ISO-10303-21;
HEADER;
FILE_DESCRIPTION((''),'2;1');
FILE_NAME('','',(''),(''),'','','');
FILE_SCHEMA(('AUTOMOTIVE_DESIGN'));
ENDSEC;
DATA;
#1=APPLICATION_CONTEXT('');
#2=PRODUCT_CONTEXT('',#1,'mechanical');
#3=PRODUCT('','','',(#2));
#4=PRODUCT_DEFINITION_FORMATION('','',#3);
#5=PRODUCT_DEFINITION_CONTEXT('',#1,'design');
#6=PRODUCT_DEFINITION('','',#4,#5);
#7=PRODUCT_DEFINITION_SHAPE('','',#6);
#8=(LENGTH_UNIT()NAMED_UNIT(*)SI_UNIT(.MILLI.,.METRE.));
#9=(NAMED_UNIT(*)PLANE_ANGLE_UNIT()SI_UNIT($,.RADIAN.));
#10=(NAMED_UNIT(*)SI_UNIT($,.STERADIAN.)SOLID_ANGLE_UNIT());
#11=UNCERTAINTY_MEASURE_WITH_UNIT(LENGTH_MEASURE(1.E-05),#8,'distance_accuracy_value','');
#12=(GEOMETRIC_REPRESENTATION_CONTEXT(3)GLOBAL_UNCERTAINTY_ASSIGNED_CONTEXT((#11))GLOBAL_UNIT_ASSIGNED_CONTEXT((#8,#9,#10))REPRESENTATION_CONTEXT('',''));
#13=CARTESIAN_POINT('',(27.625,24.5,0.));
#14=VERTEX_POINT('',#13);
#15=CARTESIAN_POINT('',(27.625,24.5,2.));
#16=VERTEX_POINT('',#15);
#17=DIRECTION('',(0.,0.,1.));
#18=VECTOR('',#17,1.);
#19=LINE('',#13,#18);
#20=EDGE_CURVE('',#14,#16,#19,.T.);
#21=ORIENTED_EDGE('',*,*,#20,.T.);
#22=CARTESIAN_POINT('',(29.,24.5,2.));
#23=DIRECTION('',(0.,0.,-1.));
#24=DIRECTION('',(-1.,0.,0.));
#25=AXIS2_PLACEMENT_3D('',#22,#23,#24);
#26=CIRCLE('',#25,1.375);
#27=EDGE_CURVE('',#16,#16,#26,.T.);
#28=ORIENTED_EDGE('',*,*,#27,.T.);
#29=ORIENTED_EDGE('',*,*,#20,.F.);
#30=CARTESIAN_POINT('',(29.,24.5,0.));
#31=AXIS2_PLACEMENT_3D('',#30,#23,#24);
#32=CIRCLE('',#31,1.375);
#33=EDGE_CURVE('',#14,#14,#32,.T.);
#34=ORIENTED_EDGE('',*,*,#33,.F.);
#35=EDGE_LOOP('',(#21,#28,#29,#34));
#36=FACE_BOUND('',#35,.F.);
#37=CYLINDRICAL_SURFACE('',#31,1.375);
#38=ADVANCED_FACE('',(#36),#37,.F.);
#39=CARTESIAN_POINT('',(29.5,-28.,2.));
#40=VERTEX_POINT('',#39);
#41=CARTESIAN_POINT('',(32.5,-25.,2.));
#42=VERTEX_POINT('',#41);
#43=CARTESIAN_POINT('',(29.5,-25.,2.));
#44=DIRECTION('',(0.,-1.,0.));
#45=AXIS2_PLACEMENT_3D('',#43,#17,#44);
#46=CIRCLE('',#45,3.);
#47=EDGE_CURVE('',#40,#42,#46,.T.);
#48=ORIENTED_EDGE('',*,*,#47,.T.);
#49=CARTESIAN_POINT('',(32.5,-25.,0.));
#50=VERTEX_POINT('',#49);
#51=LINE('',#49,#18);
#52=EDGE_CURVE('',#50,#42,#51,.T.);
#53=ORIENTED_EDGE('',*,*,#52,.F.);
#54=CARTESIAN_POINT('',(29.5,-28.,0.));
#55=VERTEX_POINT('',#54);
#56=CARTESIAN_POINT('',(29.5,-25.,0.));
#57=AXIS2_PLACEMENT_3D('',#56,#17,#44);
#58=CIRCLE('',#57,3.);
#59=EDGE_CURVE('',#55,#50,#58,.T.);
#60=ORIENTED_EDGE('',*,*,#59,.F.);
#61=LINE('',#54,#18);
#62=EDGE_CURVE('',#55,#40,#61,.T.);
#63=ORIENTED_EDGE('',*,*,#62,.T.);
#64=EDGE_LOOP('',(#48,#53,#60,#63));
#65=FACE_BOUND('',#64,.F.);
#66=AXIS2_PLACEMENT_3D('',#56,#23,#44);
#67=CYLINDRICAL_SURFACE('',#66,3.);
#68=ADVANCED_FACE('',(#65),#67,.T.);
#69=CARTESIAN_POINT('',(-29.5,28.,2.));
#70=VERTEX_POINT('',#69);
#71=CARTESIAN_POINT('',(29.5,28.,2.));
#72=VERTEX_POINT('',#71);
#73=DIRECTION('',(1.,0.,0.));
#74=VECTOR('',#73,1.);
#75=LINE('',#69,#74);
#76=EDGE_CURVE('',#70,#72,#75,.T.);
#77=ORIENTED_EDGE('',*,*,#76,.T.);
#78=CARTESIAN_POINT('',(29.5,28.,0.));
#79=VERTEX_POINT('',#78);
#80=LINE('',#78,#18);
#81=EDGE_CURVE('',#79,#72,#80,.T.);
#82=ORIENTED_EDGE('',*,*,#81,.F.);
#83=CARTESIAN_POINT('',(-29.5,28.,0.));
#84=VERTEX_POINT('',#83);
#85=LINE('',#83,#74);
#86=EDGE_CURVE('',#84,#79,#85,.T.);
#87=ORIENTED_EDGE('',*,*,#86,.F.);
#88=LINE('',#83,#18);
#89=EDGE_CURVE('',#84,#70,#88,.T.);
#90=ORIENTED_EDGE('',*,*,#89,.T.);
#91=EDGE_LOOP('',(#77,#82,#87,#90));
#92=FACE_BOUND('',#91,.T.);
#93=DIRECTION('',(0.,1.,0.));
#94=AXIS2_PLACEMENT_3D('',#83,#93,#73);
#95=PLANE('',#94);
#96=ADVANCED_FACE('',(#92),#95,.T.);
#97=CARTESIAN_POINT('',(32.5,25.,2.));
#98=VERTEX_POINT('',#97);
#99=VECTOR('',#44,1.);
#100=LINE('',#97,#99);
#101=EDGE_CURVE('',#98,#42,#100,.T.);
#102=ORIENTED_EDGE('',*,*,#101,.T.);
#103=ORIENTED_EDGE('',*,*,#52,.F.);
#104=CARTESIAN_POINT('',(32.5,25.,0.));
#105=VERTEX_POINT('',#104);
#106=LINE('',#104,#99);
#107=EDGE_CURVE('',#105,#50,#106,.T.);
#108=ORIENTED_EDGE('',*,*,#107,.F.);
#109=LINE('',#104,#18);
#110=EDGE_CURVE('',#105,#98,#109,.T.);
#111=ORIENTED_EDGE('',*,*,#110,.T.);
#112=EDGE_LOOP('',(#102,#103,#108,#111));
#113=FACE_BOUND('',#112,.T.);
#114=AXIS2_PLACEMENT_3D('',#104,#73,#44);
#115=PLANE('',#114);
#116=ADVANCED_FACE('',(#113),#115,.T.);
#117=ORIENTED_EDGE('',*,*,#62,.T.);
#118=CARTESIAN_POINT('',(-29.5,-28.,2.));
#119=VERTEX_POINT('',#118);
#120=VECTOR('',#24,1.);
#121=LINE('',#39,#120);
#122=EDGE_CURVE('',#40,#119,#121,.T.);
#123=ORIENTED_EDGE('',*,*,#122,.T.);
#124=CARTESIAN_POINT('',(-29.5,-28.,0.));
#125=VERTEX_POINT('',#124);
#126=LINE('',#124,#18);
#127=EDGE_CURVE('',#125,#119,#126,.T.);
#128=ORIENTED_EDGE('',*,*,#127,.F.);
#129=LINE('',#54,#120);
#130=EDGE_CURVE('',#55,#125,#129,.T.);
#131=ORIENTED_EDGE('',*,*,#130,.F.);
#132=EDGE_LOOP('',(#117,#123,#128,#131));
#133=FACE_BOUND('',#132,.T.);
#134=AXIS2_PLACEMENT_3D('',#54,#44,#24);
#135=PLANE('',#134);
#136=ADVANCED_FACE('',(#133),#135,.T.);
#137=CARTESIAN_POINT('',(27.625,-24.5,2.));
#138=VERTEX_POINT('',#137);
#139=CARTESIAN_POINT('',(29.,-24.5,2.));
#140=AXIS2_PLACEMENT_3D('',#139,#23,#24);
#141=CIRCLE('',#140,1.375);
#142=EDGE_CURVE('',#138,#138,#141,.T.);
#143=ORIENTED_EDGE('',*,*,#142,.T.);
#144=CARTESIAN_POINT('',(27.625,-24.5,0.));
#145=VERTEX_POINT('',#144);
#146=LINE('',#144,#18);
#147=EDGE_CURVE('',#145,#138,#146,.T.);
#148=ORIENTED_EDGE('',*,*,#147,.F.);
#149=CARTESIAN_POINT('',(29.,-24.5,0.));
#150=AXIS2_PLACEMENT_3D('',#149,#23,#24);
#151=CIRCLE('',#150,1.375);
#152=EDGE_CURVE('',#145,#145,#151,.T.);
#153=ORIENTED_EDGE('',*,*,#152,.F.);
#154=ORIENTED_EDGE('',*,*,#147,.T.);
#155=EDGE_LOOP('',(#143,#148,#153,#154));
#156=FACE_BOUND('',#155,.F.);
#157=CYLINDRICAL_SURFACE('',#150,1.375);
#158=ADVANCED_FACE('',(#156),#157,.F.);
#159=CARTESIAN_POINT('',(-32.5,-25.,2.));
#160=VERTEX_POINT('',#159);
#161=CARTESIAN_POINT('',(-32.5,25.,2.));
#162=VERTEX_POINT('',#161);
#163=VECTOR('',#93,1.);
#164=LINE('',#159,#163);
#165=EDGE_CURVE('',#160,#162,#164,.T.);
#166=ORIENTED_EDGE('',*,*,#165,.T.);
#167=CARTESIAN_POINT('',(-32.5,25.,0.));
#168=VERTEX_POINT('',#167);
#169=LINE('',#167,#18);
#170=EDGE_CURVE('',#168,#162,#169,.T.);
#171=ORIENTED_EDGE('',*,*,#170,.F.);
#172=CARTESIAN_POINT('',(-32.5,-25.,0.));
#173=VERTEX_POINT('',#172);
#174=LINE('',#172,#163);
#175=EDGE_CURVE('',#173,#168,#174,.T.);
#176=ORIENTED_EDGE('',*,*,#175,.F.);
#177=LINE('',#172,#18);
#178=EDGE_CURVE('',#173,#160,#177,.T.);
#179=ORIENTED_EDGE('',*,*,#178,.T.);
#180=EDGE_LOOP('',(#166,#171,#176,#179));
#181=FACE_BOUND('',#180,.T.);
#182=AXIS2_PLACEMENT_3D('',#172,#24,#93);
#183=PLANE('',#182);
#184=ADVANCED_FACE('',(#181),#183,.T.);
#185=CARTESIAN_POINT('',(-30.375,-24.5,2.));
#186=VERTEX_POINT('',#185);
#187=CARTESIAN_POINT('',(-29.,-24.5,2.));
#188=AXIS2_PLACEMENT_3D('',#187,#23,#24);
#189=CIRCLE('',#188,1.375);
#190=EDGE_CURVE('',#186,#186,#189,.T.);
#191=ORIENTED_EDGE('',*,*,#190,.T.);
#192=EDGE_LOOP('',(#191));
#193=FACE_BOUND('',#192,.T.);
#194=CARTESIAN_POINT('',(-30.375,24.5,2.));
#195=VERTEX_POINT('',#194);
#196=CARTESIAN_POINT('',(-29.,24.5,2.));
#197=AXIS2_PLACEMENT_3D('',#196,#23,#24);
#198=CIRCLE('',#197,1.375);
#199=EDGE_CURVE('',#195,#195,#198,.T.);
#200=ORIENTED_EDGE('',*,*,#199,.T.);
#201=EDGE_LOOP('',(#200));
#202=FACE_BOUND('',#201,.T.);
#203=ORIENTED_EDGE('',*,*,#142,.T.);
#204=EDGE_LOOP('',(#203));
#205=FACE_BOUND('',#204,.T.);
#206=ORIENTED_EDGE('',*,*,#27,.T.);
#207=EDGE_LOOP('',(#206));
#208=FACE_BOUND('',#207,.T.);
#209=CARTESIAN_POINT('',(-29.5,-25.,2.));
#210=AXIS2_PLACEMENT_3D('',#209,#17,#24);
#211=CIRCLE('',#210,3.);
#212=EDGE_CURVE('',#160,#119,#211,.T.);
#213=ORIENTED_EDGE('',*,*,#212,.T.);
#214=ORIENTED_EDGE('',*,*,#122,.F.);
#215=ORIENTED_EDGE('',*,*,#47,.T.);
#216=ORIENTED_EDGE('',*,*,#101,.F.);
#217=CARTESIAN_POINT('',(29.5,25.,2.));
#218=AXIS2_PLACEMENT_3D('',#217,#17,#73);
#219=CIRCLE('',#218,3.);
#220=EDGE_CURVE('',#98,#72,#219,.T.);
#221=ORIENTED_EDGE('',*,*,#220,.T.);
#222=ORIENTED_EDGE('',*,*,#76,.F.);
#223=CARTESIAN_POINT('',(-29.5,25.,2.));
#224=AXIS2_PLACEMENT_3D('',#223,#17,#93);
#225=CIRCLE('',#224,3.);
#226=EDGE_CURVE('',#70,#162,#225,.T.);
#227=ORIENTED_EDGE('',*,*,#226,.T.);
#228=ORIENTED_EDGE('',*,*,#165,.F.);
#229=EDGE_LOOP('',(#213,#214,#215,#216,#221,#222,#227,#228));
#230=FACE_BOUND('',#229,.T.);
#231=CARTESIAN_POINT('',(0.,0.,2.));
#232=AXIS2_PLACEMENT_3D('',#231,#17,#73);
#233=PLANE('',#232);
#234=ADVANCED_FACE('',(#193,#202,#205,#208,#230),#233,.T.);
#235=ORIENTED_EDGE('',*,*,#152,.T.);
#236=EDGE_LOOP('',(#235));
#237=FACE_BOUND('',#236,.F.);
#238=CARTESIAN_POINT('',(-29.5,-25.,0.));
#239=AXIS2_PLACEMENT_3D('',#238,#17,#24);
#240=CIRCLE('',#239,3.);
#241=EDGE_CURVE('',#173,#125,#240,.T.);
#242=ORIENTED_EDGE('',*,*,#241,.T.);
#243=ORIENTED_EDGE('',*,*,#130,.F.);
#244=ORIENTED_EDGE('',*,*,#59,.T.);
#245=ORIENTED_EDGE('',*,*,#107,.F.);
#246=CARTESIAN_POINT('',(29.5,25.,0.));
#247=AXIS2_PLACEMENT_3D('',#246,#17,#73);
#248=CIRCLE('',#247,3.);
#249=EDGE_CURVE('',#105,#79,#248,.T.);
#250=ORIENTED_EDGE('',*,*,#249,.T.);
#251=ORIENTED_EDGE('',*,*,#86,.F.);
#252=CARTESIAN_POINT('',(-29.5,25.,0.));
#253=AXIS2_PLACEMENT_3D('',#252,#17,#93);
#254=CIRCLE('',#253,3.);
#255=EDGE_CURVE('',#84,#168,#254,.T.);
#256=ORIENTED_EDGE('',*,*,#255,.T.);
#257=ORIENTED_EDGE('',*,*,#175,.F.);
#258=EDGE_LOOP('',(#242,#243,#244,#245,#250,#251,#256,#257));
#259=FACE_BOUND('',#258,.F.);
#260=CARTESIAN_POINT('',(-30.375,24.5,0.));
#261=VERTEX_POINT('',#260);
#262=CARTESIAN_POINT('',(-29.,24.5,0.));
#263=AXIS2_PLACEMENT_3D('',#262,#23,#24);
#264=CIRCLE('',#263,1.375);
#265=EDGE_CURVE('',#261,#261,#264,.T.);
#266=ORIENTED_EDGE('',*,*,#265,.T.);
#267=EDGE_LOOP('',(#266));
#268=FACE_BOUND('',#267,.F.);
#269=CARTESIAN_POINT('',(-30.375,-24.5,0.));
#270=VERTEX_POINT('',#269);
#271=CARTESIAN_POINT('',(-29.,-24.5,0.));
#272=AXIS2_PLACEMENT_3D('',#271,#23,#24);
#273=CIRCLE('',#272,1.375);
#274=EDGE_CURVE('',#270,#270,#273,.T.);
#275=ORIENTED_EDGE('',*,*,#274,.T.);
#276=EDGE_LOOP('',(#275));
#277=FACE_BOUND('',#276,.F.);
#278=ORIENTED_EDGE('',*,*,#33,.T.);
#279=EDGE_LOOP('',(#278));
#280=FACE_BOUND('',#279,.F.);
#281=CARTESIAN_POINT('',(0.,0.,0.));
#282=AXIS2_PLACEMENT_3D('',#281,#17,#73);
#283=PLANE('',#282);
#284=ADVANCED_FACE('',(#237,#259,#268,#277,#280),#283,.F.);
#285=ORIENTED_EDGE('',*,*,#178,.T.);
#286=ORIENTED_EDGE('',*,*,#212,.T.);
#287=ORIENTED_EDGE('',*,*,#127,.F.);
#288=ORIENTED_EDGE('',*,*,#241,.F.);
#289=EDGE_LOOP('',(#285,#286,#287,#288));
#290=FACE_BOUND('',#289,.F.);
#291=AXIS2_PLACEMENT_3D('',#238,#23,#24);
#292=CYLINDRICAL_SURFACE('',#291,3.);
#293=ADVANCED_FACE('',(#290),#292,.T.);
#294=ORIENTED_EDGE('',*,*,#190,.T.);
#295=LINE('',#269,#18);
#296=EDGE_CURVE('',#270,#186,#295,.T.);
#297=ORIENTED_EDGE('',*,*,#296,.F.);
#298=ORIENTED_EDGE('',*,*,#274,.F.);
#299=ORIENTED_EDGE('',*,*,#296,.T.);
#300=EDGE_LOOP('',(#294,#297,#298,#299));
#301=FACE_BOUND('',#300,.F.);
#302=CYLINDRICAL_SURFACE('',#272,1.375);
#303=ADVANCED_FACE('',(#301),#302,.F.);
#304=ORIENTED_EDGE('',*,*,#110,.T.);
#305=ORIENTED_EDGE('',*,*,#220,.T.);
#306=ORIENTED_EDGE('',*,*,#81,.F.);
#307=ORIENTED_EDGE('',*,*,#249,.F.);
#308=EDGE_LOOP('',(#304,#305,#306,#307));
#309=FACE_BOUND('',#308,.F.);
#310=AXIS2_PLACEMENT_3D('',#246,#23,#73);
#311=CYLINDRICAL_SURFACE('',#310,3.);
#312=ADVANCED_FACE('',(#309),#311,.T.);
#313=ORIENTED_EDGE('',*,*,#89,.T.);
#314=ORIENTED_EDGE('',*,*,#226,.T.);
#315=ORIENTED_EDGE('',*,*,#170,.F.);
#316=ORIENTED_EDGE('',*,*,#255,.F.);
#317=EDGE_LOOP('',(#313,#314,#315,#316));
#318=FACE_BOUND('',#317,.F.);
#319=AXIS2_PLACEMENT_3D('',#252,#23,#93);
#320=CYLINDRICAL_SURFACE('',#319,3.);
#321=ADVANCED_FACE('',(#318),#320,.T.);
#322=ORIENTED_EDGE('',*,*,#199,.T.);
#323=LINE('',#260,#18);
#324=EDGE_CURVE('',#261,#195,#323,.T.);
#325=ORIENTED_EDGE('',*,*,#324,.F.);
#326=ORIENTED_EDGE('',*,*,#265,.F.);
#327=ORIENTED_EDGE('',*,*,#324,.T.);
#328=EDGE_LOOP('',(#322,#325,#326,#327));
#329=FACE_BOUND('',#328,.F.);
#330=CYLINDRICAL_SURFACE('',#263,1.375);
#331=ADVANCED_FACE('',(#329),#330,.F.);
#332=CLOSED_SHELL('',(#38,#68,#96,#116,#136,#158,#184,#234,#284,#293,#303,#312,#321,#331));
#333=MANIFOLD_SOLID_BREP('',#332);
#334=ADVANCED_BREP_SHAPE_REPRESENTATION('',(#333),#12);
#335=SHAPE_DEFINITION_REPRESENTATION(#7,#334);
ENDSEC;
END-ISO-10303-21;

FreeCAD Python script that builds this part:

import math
import FreeCAD as App
import Part
import Sketcher
from FreeCAD import Vector

doc = App.newDocument("Part")
body = doc.addObject("PartDesign::Body", "Body")

# Sketch on XY plane
sketch1 = body.newObject("Sketcher::SketchObject", "Sketch")
sketch1.AttachmentSupport = (doc.getObject("XY_Plane"), [""])
sketch1.MapMode = "FlatFace"
sketch1.addGeometry(Part.LineSegment(Vector(29.5, 28, 0), Vector(-29.5, 28, 0)), False)
sketch1.addGeometry(Part.ArcOfCircle(Part.Circle(Vector(-29.5, 25, 0), Vector(0, 0, 1), 3), math.radians(90), math.radians(180)), False)
sketch1.addGeometry(Part.LineSegment(Vector(-32.5, 25, 0), Vector(-32.5, -25, 0)), False)
sketch1.addGeometry(Part.ArcOfCircle(Part.Circle(Vector(-29.5, -25, 0), Vector(0, 0, 1), 3), math.radians(180), math.radians(270)), False)
sketch1.addGeometry(Part.LineSegment(Vector(-29.5, -28, 0), Vector(29.5, -28, 0)), False)
sketch1.addGeometry(Part.ArcOfCircle(Part.Circle(Vector(29.5, -25, 0), Vector(0, 0, 1), 3), math.radians(-90), math.radians(0)), False)
sketch1.addGeometry(Part.LineSegment(Vector(32.5, -25, 0), Vector(32.5, 25, 0)), False)
sketch1.addGeometry(Part.ArcOfCircle(Part.Circle(Vector(29.5, 25, 0), Vector(0, 0, 1), 3), math.radians(0), math.radians(90)), False)
sketch1.addConstraint(Sketcher.Constraint("Tangent", 0, 2, 1, 1))
sketch1.addConstraint(Sketcher.Constraint("Tangent", 1, 2, 2, 1))
sketch1.addConstraint(Sketcher.Constraint("Tangent", 2, 2, 3, 1))
sketch1.addConstraint(Sketcher.Constraint("Tangent", 3, 2, 4, 1))
sketch1.addConstraint(Sketcher.Constraint("Tangent", 4, 2, 5, 1))
sketch1.addConstraint(Sketcher.Constraint("Tangent", 5, 2, 6, 1))
sketch1.addConstraint(Sketcher.Constraint("Tangent", 6, 2, 7, 1))
sketch1.addConstraint(Sketcher.Constraint("Tangent", 7, 2, 0, 1))
sketch1.addConstraint(Sketcher.Constraint("Horizontal", 0))
sketch1.addConstraint(Sketcher.Constraint("Vertical", 2))
sketch1.addConstraint(Sketcher.Constraint("Horizontal", 4))
sketch1.addConstraint(Sketcher.Constraint("Vertical", 6))
sketch1.addConstraint(Sketcher.Constraint("Equal", 1, 3))
sketch1.addConstraint(Sketcher.Constraint("Equal", 3, 5))
sketch1.addConstraint(Sketcher.Constraint("Equal", 5, 7))
sketch1.addConstraint(Sketcher.Constraint("Symmetric", 1, 3, 5, 3, -1, 1))
sketch1.addConstraint(Sketcher.Constraint("Radius", 1, 3.0))
sketch1.addConstraint(Sketcher.Constraint("DistanceY", -1, 1, 0, 2, 28.0))
sketch1.addConstraint(Sketcher.Constraint("DistanceX", 1, 2, -1, 1, 32.5))
pad1 = body.newObject("PartDesign::Pad", "Pad")
pad1.Profile = sketch1
pad1.Length = 2

# Sketch on XY plane
sketch2 = body.newObject("Sketcher::SketchObject", "Sketch001")
sketch2.AttachmentSupport = (doc.getObject("XY_Plane"), [""])
sketch2.MapMode = "FlatFace"
sketch2.addGeometry(Part.Circle(Vector(-29, 24.5, 0), Vector(0, 0, 1), 1.375), False)
sketch2.addGeometry(Part.Circle(Vector(29, 24.5, 0), Vector(0, 0, 1), 1.375), False)
sketch2.addGeometry(Part.Circle(Vector(29, -24.5, 0), Vector(0, 0, 1), 1.375), False)
sketch2.addGeometry(Part.Circle(Vector(-29, -24.5, 0), Vector(0, 0, 1), 1.375), False)
sketch2.addConstraint(Sketcher.Constraint("Equal", 0, 1))
sketch2.addConstraint(Sketcher.Constraint("Equal", 1, 2))
sketch2.addConstraint(Sketcher.Constraint("Equal", 2, 3))
sketch2.addConstraint(Sketcher.Constraint("Symmetric", 0, 3, 2, 3, -1, 1))
sketch2.addConstraint(Sketcher.Constraint("Symmetric", 1, 3, 3, 3, -1, 1))
sketch2.addConstraint(Sketcher.Constraint("Symmetric", 0, 3, 1, 3, -2))
sketch2.addConstraint(Sketcher.Constraint("Diameter", 0, 2.75))
sketch2.addConstraint(Sketcher.Constraint("DistanceX", 0, 3, -1, 1, 29.0))
sketch2.addConstraint(Sketcher.Constraint("DistanceY", 2, 3, 1, 3, 49.0))
pocket1 = body.newObject("PartDesign::Pocket", "Pocket")
pocket1.Profile = sketch2
pocket1.Type = "ThroughAll"
pocket1.Reversed = True

doc.recompute()
